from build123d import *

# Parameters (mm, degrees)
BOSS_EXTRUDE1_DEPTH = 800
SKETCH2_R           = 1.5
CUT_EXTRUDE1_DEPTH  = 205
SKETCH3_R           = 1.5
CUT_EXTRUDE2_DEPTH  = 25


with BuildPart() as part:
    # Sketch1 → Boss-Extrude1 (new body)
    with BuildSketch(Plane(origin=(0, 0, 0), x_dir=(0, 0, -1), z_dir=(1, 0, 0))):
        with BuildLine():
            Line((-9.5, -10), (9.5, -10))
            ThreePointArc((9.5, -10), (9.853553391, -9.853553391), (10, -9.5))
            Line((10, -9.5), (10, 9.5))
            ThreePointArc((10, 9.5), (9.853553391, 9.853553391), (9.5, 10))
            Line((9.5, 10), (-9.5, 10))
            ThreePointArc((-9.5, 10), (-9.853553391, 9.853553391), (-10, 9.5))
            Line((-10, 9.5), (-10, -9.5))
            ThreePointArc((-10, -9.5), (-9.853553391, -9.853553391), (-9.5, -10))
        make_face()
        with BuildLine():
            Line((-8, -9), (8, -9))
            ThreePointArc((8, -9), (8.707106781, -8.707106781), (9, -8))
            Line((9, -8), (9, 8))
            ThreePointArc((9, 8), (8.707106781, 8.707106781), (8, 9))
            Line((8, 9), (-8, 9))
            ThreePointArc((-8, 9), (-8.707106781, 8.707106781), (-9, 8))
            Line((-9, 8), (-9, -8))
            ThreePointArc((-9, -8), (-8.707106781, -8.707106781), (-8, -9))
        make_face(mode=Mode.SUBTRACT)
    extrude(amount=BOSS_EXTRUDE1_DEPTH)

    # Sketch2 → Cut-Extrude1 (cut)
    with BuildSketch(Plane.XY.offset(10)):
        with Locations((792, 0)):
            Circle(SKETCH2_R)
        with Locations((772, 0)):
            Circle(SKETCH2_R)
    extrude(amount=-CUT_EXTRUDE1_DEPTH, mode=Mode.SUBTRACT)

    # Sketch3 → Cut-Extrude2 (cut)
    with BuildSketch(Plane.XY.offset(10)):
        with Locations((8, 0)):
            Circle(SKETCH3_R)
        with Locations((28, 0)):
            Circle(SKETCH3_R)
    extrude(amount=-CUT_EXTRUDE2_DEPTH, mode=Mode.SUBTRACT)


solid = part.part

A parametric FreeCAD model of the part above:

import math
import FreeCAD as App
import Part
import Sketcher

V = App.Vector

doc = App.newDocument("Part")
params = doc.addObject("Spreadsheet::Sheet", "Params")
for row, (alias, value) in enumerate([
    ("sketch1_radius", "1 mm"),
    ("sketch1_radius2", "0.5 mm"),
    ("sketch1_width", "19 mm"),
    ("sketch1_width2", "16 mm"),
    ("pad1_length", "800 mm"),
    ("sketch2_diameter", "3 mm"),
    ("pocket1_length", "205 mm"),
    ("sketch3_diameter", "3 mm"),
    ("pocket2_length", "25 mm"),
], start=1):
    params.set(f"A{row}", alias)
    params.set(f"B{row}", "=" + value)
    params.setAlias(f"B{row}", alias)

body = doc.addObject("PartDesign::Body", "Body")

# Sketch on YZ plane
sketch1 = body.newObject("Sketcher::SketchObject", "Sketch")
sketch1.AttachmentSupport = (doc.getObject("YZ_Plane"), [""])
sketch1.MapMode = "FlatFace"
sketch1.addGeometry([
    Part.LineSegment(V(-10, 9.5, 0), V(-10, -9.5, 0)),  # 0
    Part.ArcOfCircle(Part.Circle(V(-9.5, -9.5, 0), V(0, 0, 1), 0.5), math.radians(180), math.radians(270)),  # 1
    Part.LineSegment(V(-9.5, -10, 0), V(9.5, -10, 0)),  # 2
    Part.ArcOfCircle(Part.Circle(V(9.5, -9.5, 0), V(0, 0, 1), 0.5), math.radians(-90), math.radians(0)),  # 3
    Part.LineSegment(V(10, -9.5, 0), V(10, 9.5, 0)),  # 4
    Part.ArcOfCircle(Part.Circle(V(9.5, 9.5, 0), V(0, 0, 1), 0.5), math.radians(0), math.radians(90)),  # 5
    Part.LineSegment(V(9.5, 10, 0), V(-9.5, 10, 0)),  # 6
    Part.ArcOfCircle(Part.Circle(V(-9.5, 9.5, 0), V(0, 0, 1), 0.5), math.radians(90), math.radians(180)),  # 7
    Part.LineSegment(V(-9, -8, 0), V(-9, 8, 0)),  # 8
    Part.ArcOfCircle(Part.Circle(V(-8, 8, 0), V(0, 0, 1), 1), math.radians(90), math.radians(180)),  # 9
    Part.LineSegment(V(-8, 9, 0), V(8, 9, 0)),  # 10
    Part.ArcOfCircle(Part.Circle(V(8, 8, 0), V(0, 0, 1), 1), math.radians(0), math.radians(90)),  # 11
    Part.LineSegment(V(9, 8, 0), V(9, -8, 0)),  # 12
    Part.ArcOfCircle(Part.Circle(V(8, -8, 0), V(0, 0, 1), 1), math.radians(-90), math.radians(0)),  # 13
    Part.LineSegment(V(8, -9, 0), V(-8, -9, 0)),  # 14
    Part.ArcOfCircle(Part.Circle(V(-8, -8, 0), V(0, 0, 1), 1), math.radians(-180), math.radians(-90)),  # 15
], False)
sketch1.addConstraint([
    Sketcher.Constraint("Tangent", 0, 2, 1, 1),
    Sketcher.Constraint("Tangent", 1, 2, 2, 1),
    Sketcher.Constraint("Tangent", 2, 2, 3, 1),
    Sketcher.Constraint("Tangent", 3, 2, 4, 1),
    Sketcher.Constraint("Tangent", 4, 2, 5, 1),
    Sketcher.Constraint("Tangent", 5, 2, 6, 1),
    Sketcher.Constraint("Tangent", 6, 2, 7, 1),
    Sketcher.Constraint("Tangent", 7, 2, 0, 1),
    Sketcher.Constraint("Tangent", 8, 2, 9, 2),
    Sketcher.Constraint("Tangent", 9, 1, 10, 1),
    Sketcher.Constraint("Tangent", 10, 2, 11, 2),
    Sketcher.Constraint("Tangent", 11, 1, 12, 1),
    Sketcher.Constraint("Tangent", 12, 2, 13, 2),
    Sketcher.Constraint("Tangent", 13, 1, 14, 1),
    Sketcher.Constraint("Tangent", 14, 2, 15, 2),
    Sketcher.Constraint("Tangent", 15, 1, 8, 1),
    Sketcher.Constraint("Vertical", 0),
    Sketcher.Constraint("Horizontal", 2),
    Sketcher.Constraint("Vertical", 4),
    Sketcher.Constraint("Horizontal", 6),
    Sketcher.Constraint("Vertical", 8),
    Sketcher.Constraint("Horizontal", 10),
    Sketcher.Constraint("Vertical", 12),
    Sketcher.Constraint("Horizontal", 14),
    Sketcher.Constraint("Equal", 1, 3),
    Sketcher.Constraint("Equal", 3, 5),
    Sketcher.Constraint("Equal", 5, 7),
    Sketcher.Constraint("Equal", 9, 11),
    Sketcher.Constraint("Equal", 11, 13),
    Sketcher.Constraint("Equal", 13, 15),
    Sketcher.Constraint("Symmetric", 1, 3, 5, 3, -1, 1),
    Sketcher.Constraint("Symmetric", 9, 3, 13, 3, -1, 1),
    Sketcher.Constraint("Equal", 6, 0),
    Sketcher.Constraint("Equal", 14, 8),
    Sketcher.Constraint("Radius", 9, 1.0),
    Sketcher.Constraint("Radius", 1, 0.5),
    Sketcher.Constraint("DistanceX", 2, 1, 2, 2, 19.0),
    Sketcher.Constraint("DistanceX", 10, 1, 10, 2, 16.0),
])
sketch1.setExpression("Constraints[34]", "Params.sketch1_radius")
sketch1.setExpression("Constraints[35]", "Params.sketch1_radius2")
sketch1.setExpression("Constraints[36]", "Params.sketch1_width")
sketch1.setExpression("Constraints[37]", "Params.sketch1_width2")
pad1 = body.newObject("PartDesign::Pad", "Pad")
pad1.Profile = sketch1
pad1.setExpression("Length", "Params.pad1_length")

# Sketch on XY plane
sketch2 = body.newObject("Sketcher::SketchObject", "Sketch001")
sketch2.AttachmentSupport = (doc.getObject("XY_Plane"), [""])
sketch2.MapMode = "FlatFace"
sketch2.AttachmentOffset = App.Placement(V(0, 0, 10), App.Rotation())
sketch2.addGeometry([
    Part.Circle(V(792, 0, 0), V(0, 0, 1), 1.5),
    Part.Circle(V(772, 0, 0), V(0, 0, 1), 1.5),
], False)
sketch2.addConstraint([
    Sketcher.Constraint("Equal", 0, 1),
    Sketcher.Constraint("PointOnObject", 0, 3, -1),
    Sketcher.Constraint("PointOnObject", 1, 3, -1),
    Sketcher.Constraint("Diameter", 0, 3.0),
    Sketcher.Constraint("DistanceX", -1, 1, 0, 3, 792.0),
    Sketcher.Constraint("DistanceX", -1, 1, 1, 3, 772.0),
])
sketch2.setExpression("Constraints[3]", "Params.sketch2_diameter")
pocket1 = body.newObject("PartDesign::Pocket", "Pocket")
pocket1.Profile = sketch2
pocket1.setExpression("Length", "Params.pocket1_length")

# Sketch on XY plane
sketch3 = body.newObject("Sketcher::SketchObject", "Sketch002")
sketch3.AttachmentSupport = (doc.getObject("XY_Plane"), [""])
sketch3.MapMode = "FlatFace"
sketch3.AttachmentOffset = App.Placement(V(0, 0, 10), App.Rotation())
sketch3.addGeometry([
    Part.Circle(V(8, 0, 0), V(0, 0, 1), 1.5),
    Part.Circle(V(28, 0, 0), V(0, 0, 1), 1.5),
], False)
sketch3.addConstraint([
    Sketcher.Constraint("Equal", 0, 1),
    Sketcher.Constraint("PointOnObject", 0, 3, -1),
    Sketcher.Constraint("PointOnObject", 1, 3, -1),
    Sketcher.Constraint("Diameter", 0, 3.0),
    Sketcher.Constraint("DistanceX", -1, 1, 0, 3, 8.0),
    Sketcher.Constraint("DistanceX", -1, 1, 1, 3, 28.0),
])
sketch3.setExpression("Constraints[3]", "Params.sketch3_diameter")
pocket2 = body.newObject("PartDesign::Pocket", "Pocket001")
pocket2.Profile = sketch3
pocket2.setExpression("Length", "Params.pocket2_length")

doc.recompute()
